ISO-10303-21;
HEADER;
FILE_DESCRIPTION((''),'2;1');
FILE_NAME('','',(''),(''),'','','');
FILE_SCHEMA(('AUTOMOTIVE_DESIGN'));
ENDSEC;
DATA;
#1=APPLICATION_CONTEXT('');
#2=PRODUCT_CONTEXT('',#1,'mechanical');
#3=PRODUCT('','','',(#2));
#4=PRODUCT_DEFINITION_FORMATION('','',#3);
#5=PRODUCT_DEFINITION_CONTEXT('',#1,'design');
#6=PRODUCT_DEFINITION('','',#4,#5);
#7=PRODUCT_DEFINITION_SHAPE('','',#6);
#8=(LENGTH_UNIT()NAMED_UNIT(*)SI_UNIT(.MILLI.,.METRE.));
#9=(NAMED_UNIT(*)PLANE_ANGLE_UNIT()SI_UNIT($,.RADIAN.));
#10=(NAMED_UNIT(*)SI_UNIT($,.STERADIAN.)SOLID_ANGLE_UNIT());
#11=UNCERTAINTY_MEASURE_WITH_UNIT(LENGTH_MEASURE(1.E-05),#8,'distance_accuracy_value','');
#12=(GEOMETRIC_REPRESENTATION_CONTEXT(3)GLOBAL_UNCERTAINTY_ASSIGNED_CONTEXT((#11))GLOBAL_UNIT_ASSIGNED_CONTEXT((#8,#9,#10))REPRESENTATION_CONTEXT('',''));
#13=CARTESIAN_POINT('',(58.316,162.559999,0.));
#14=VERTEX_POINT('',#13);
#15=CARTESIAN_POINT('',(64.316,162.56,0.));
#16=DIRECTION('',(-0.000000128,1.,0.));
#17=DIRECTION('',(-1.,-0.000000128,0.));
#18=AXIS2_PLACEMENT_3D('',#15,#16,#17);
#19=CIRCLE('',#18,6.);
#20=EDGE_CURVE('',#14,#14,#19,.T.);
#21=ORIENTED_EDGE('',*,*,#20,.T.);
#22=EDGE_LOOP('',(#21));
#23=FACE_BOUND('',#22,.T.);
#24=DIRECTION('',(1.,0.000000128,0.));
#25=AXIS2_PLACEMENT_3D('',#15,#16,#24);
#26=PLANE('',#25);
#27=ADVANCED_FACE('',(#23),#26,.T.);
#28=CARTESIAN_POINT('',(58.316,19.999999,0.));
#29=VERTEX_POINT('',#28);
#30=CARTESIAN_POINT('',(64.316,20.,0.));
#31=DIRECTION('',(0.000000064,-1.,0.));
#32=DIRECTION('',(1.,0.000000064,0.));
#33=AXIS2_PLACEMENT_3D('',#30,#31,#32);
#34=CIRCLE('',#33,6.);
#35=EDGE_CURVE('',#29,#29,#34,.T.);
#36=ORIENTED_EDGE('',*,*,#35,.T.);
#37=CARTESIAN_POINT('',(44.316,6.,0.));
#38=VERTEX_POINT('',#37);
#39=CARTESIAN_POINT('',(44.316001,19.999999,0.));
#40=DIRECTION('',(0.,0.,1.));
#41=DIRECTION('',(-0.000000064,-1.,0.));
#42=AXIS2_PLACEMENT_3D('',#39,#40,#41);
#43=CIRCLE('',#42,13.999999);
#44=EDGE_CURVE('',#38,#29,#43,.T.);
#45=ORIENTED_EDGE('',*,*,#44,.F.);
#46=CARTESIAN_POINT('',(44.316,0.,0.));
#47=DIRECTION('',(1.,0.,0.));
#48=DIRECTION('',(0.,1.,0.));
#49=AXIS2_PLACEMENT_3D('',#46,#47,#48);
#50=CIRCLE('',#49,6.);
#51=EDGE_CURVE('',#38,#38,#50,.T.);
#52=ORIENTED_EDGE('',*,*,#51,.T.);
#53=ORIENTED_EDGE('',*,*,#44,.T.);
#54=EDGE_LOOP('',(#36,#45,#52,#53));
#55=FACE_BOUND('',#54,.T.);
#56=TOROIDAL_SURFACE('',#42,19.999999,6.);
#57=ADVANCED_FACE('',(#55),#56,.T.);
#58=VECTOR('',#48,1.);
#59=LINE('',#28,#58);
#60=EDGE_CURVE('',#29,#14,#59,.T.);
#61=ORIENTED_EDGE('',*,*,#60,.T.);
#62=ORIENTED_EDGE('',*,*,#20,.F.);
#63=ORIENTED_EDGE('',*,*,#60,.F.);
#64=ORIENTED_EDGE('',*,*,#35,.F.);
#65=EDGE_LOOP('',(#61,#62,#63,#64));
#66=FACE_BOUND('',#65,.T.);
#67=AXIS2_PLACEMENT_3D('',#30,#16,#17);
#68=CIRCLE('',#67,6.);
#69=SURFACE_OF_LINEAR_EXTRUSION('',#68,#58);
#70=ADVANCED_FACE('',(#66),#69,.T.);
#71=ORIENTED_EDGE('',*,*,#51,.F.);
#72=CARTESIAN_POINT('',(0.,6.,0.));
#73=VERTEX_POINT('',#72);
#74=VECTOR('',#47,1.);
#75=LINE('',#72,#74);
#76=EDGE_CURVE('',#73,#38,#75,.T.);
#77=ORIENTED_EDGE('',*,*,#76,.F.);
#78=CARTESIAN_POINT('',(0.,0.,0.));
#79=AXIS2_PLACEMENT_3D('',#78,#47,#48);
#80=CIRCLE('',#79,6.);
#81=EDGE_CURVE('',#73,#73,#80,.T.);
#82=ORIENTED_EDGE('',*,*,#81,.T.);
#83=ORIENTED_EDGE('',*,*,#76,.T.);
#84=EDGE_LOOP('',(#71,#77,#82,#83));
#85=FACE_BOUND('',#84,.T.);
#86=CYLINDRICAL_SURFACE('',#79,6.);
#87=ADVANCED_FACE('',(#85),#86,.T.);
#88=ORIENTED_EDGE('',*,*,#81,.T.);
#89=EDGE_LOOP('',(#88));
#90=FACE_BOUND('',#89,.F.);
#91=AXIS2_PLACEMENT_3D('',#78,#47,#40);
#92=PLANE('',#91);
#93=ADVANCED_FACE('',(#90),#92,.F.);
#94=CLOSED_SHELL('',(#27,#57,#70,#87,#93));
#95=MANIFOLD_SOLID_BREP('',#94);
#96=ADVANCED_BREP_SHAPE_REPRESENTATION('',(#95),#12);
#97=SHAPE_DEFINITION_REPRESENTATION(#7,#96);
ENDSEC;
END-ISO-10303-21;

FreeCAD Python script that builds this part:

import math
import FreeCAD as App
import Part
import Sketcher
from FreeCAD import Vector

doc = App.newDocument("Part")
body = doc.addObject("PartDesign::Body", "Body")

# Sketch on YZ plane
sketch1 = body.newObject("Sketcher::SketchObject", "Sketch")
sketch1.AttachmentSupport = (doc.getObject("YZ_Plane"), [""])
sketch1.MapMode = "FlatFace"
sketch1.addGeometry(Part.Circle(Vector(0, 0, 0), Vector(0, 0, 1), 6), False)
sketch1.addConstraint(Sketcher.Constraint("Coincident", 0, 3, -1, 1))
sketch1.addConstraint(Sketcher.Constraint("Diameter", 0, 12.0))

# Sketch on XY plane
sketch2 = body.newObject("Sketcher::SketchObject", "Sketch001")
sketch2.AttachmentSupport = (doc.getObject("XY_Plane"), [""])
sketch2.MapMode = "FlatFace"
sketch2.addGeometry(Part.LineSegment(Vector(0, 0, 0), Vector(44, 0, 0)), False)
sketch2.addGeometry(Part.ArcOfCircle(Part.Circle(Vector(44, 20, 0), Vector(0, 0, 1), 20), math.radians(-90), math.radians(0)), False)
sketch2.addGeometry(Part.LineSegment(Vector(64, 20, 0), Vector(64, 163, 0)), False)
sketch2.addConstraint(Sketcher.Constraint("Tangent", 0, 2, 1, 1))
sketch2.addConstraint(Sketcher.Constraint("Tangent", 1, 2, 2, 1))
sketch2.addConstraint(Sketcher.Constraint("Horizontal", 0))
sketch2.addConstraint(Sketcher.Constraint("Vertical", 2))
sketch2.addConstraint(Sketcher.Constraint("Coincident", 0, 1, -1, 1))
sketch2.addConstraint(Sketcher.Constraint("Radius", 1, 19.999999))
sketch2.addConstraint(Sketcher.Constraint("DistanceY", 2, 1, 2, 2, 142.56))
sketch2.addConstraint(Sketcher.Constraint("DistanceX", 0, 1, 0, 2, 44.316))
doc.recompute()

additivepipe = body.newObject("PartDesign::AdditivePipe", "AdditivePipe")
additivepipe.Profile = sketch1
additivepipe.Spine = (sketch2, ["Edge1", "Edge2", "Edge3"])

doc.recompute()
